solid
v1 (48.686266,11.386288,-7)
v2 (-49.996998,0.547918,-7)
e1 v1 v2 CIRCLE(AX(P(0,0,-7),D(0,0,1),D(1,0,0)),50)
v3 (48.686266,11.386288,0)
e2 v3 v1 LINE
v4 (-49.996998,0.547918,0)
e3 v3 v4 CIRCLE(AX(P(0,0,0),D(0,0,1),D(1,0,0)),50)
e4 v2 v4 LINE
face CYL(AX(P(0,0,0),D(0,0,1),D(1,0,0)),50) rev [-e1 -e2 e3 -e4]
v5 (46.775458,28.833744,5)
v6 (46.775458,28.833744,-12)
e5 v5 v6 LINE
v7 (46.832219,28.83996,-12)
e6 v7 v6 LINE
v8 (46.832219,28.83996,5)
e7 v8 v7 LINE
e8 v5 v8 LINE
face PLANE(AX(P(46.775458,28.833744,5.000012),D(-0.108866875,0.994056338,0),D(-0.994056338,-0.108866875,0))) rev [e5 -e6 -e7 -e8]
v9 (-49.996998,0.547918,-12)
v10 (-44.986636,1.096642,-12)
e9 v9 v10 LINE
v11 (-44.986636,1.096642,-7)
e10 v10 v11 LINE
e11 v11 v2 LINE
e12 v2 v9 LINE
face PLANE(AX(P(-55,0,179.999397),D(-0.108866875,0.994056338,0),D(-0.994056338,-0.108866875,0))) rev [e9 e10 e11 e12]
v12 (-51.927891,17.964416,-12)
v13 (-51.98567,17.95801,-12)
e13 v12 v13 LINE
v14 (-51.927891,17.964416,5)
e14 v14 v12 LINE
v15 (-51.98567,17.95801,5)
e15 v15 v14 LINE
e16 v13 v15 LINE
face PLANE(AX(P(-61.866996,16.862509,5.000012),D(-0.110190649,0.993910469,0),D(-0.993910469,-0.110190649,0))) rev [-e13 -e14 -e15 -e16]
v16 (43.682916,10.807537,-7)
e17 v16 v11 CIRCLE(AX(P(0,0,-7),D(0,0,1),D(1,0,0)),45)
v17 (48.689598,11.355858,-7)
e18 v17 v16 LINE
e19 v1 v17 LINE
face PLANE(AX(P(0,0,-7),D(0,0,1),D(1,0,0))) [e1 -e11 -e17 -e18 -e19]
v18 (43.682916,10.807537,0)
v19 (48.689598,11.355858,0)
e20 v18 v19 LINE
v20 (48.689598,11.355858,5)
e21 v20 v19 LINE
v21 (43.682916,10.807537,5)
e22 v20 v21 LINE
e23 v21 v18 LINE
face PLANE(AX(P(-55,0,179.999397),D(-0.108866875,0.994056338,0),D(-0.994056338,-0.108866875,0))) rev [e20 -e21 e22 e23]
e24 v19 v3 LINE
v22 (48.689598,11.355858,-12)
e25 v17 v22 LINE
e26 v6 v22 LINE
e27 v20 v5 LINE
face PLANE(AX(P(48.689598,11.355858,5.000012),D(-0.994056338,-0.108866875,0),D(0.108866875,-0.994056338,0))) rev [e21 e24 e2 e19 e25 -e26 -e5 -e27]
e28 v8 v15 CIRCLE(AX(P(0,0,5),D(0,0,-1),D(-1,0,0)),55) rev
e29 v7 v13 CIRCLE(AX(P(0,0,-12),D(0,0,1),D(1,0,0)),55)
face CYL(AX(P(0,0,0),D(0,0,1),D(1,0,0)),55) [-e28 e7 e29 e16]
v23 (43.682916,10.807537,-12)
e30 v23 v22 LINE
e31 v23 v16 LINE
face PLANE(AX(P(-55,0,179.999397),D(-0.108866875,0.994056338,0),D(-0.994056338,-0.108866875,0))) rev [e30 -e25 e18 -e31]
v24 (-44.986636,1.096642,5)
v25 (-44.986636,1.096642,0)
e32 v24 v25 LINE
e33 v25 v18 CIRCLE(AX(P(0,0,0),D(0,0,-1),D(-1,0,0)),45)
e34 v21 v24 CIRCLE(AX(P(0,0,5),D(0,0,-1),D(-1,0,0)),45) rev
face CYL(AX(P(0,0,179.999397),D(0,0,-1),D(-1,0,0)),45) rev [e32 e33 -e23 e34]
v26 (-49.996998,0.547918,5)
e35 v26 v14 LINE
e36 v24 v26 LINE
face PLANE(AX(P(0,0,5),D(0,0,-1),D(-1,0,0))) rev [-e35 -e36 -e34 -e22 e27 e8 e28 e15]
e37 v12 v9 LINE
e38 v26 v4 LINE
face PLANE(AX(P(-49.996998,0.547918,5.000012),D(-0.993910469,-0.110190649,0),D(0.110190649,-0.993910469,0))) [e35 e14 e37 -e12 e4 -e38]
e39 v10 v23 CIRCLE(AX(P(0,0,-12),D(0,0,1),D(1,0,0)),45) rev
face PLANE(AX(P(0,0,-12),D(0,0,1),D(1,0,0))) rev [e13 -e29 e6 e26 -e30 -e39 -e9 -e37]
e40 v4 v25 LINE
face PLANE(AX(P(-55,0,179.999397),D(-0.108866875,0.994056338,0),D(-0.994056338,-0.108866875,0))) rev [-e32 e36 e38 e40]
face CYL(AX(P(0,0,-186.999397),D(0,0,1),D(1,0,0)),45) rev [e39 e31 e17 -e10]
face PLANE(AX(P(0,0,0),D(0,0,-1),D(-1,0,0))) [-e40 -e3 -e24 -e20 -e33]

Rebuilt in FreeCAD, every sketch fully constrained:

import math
import FreeCAD as App
import Part
import Sketcher

V = App.Vector
Q = App.Units.Quantity


def faces_at(feature, points):
    """Names of the faces that lie closest to the given points."""
    faces = feature.Shape.Faces
    near = lambda p: min(range(len(faces)), key=lambda i: faces[i].distToShape(Part.Vertex(*p))[0])
    return sorted({f"Face{near(p) + 1}" for p in points})

doc = App.newDocument("Part")
body = doc.addObject("PartDesign::Body", "Body")

sketch1 = body.newObject("Sketcher::SketchObject", "Sketch")
sketch1.AttachmentSupport = (doc.getObject("XZ_Plane"), [""])
sketch1.MapMode = "FlatFace"
sketch1.addGeometry(Part.LineSegment(V(-50, -7, 0), V(-50, 0, 0)), False)
sketch1.addGeometry(Part.LineSegment(V(-50, 0, 0), V(0, 0, 0)), False)
sketch1.addGeometry(Part.LineSegment(V(0, 0, 0), V(0, -7, 0)), False)
sketch1.addGeometry(Part.LineSegment(V(0, -7, 0), V(-50, -7, 0)), False)
sketch1.addConstraint(Sketcher.Constraint("Coincident", 0, 2, 1, 1))
sketch1.addConstraint(Sketcher.Constraint("Coincident", 1, 2, 2, 1))
sketch1.addConstraint(Sketcher.Constraint("Coincident", 2, 2, 3, 1))
sketch1.addConstraint(Sketcher.Constraint("Coincident", 3, 2, 0, 1))
sketch1.addConstraint(Sketcher.Constraint("Vertical", 0))
sketch1.addConstraint(Sketcher.Constraint("Horizontal", 1))
sketch1.addConstraint(Sketcher.Constraint("Vertical", 2))
sketch1.addConstraint(Sketcher.Constraint("Horizontal", 3))
sketch1.addConstraint(Sketcher.Constraint("Coincident", 1, 2, -1, 1))
sketch1.addConstraint(Sketcher.Constraint("DistanceX", 1, 1, 1, 2, 50.0))
sketch1.addConstraint(Sketcher.Constraint("DistanceY", 0, 1, 0, 2, 7.0))
revolution = body.newObject("PartDesign::Revolution", "Revolution")
revolution.Profile = sketch1
revolution.ReferenceAxis = (sketch1, ["V_Axis"])
revolution.Angle = 167.5
revolution.Reversed = True
doc.recompute()

thickness = body.newObject("PartDesign::Thickness", "Thickness")
thickness.Base = (revolution, faces_at(revolution, [(-25, 0, -3.5), (24.407, 5.411, -3.5)]))
thickness.Value = 5
thickness.Reversed = False
thickness.Join = "Intersection"

sketch2 = body.newObject("Sketcher::SketchObject", "Sketch001")
sketch2.AttachmentSupport = (doc.getObject("XY_Plane"), [""])
sketch2.MapMode = "FlatFace"
sketch2.AttachmentOffset = App.Placement(V(0, 0, 5), App.Rotation())
sketch2.addGeometry(Part.LineSegment(V(-55, 0, 0), V(-307.130564, -27.612788, 0)), False)
sketch2.addGeometry(Part.LineSegment(V(-307.130564, -27.612788, 0), V(-251.904989, -531.873916, 0)), False)
sketch2.addGeometry(Part.LineSegment(V(-251.904989, -531.873916, 0), V(361.05242, -464.744162, 0)), False)
sketch2.addGeometry(Part.LineSegment(V(361.05242, -464.744162, 0), V(305.826845, 39.516966, 0)), False)
sketch2.addGeometry(Part.LineSegment(V(305.826845, 39.516966, 0), V(53.69628, 11.904179, 0)), False)
sketch2.addGeometry(Part.LineSegment(V(53.69628, 11.904179, 0), V(-55, 0, 0)), False)
sketch2.addConstraint(Sketcher.Constraint("Coincident", 0, 2, 1, 1))
sketch2.addConstraint(Sketcher.Constraint("Coincident", 1, 2, 2, 1))
sketch2.addConstraint(Sketcher.Constraint("Coincident", 2, 2, 3, 1))
sketch2.addConstraint(Sketcher.Constraint("Coincident", 3, 2, 4, 1))
sketch2.addConstraint(Sketcher.Constraint("Coincident", 4, 2, 5, 1))
sketch2.addConstraint(Sketcher.Constraint("Coincident", 5, 2, 0, 1))
sketch2.addConstraint(Sketcher.Constraint("PointOnObject", 5, 2, -1))
sketch2.addConstraint(Sketcher.Constraint("Perpendicular", 0, 1))
sketch2.addConstraint(Sketcher.Constraint("Perpendicular", 1, 2))
sketch2.addConstraint(Sketcher.Constraint("Perpendicular", 2, 3))
sketch2.addConstraint(Sketcher.Constraint("Perpendicular", 3, 4))
sketch2.addConstraint(Sketcher.Constraint("Parallel", 4, 5))
sketch2.addConstraint(Sketcher.Constraint("Equal", 0, 4))
sketch2.addConstraint(Sketcher.Constraint("DistanceX", 5, 2, -1, 1, 55.0))
sketch2.addConstraint(Sketcher.Constraint("Angle", 0, Q("-173.75 deg")))
sketch2.addConstraint(Sketcher.Constraint("DistanceX", 1, 2, -1, 1, 251.904989))
sketch2.addConstraint(Sketcher.Constraint("DistanceX", -1, 1, 2, 2, 361.05242))
sketch2.addConstraint(Sketcher.Constraint("DistanceX", -1, 1, 4, 2, 53.69628))
pocket1 = body.newObject("PartDesign::Pocket", "Pocket")
pocket1.Profile = sketch2
pocket1.Type = "TwoLengths"
pocket1.Length = 80.617837
pocket1.Length2 = 10
pocket1.Reversed = True

sketch3 = body.newObject("Sketcher::SketchObject", "Sketch002")
sketch3.AttachmentSupport = (doc.getObject("XY_Plane"), [""])
sketch3.MapMode = "FlatFace"
sketch3.AttachmentOffset = App.Placement(V(0, 0, -12), App.Rotation())
sketch3.addGeometry(Part.LineSegment(V(53.69628, 11.904179, 0), V(305.826845, 39.516966, 0)), False)
sketch3.addGeometry(Part.LineSegment(V(305.826845, 39.516966, 0), V(361.05242, -464.744162, 0)), False)
sketch3.addGeometry(Part.LineSegment(V(361.05242, -464.744162, 0), V(-251.904989, -531.873916, 0)), False)
sketch3.addGeometry(Part.LineSegment(V(-251.904989, -531.873916, 0), V(-307.130564, -27.612788, 0)), False)
sketch3.addGeometry(Part.LineSegment(V(-307.130564, -27.612788, 0), V(-55, 0, 0)), False)
sketch3.addGeometry(Part.LineSegment(V(-55, 0, 0), V(53.69628, 11.904179, 0)), False)
sketch3.addConstraint(Sketcher.Constraint("Coincident", 0, 2, 1, 1))
sketch3.addConstraint(Sketcher.Constraint("Coincident", 1, 2, 2, 1))
sketch3.addConstraint(Sketcher.Constraint("Coincident", 2, 2, 3, 1))
sketch3.addConstraint(Sketcher.Constraint("Coincident", 3, 2, 4, 1))
sketch3.addConstraint(Sketcher.Constraint("Coincident", 4, 2, 5, 1))
sketch3.addConstraint(Sketcher.Constraint("Coincident", 5, 2, 0, 1))
sketch3.addConstraint(Sketcher.Constraint("PointOnObject", 4, 2, -1))
sketch3.addConstraint(Sketcher.Constraint("Perpendicular", 0, 1))
sketch3.addConstraint(Sketcher.Constraint("Perpendicular", 1, 2))
sketch3.addConstraint(Sketcher.Constraint("Perpendicular", 2, 3))
sketch3.addConstraint(Sketcher.Constraint("Perpendicular", 3, 4))
sketch3.addConstraint(Sketcher.Constraint("Parallel", 4, 5))
sketch3.addConstraint(Sketcher.Constraint("Equal", 0, 4))
sketch3.addConstraint(Sketcher.Constraint("DistanceX", 4, 2, -1, 1, 55.0))
sketch3.addConstraint(Sketcher.Constraint("Angle", 0, Q("6.25 deg")))
sketch3.addConstraint(Sketcher.Constraint("DistanceX", -1, 1, 1, 2, 361.05242))
sketch3.addConstraint(Sketcher.Constraint("DistanceX", 2, 2, -1, 1, 251.904989))
sketch3.addConstraint(Sketcher.Constraint("DistanceX", -1, 1, 5, 2, 53.69628))
pocket2 = body.newObject("PartDesign::Pocket", "Pocket001")
pocket2.Profile = sketch3
pocket2.Type = "ThroughAll"
pocket2.Midplane = True

sketch4 = body.newObject("Sketcher::SketchObject", "Sketch003")
sketch4.AttachmentSupport = (doc.getObject("XY_Plane"), [""])
sketch4.MapMode = "FlatFace"
sketch4.AttachmentOffset = App.Placement(V(0, 0, 5), App.Rotation())
sketch4.addGeometry(Part.LineSegment(V(-44.986636, 1.096642, 0), V(-50.710864, -233.723705, 0)), False)
sketch4.addGeometry(Part.LineSegment(V(-50.710864, -233.723705, 0), V(0.432639, -700.711701, 0)), False)
sketch4.addGeometry(Part.LineSegment(V(0.432639, -700.711701, 0), V(151.239386, -684.195677, 0)), False)
sketch4.addGeometry(Part.LineSegment(V(151.239386, -684.195677, 0), V(100.095883, -217.20768, 0)), False)
sketch4.addGeometry(Part.LineSegment(V(100.095883, -217.20768, 0), V(43.682916, 10.807537, 0)), False)
sketch4.addGeometry(Part.ArcOfCircle(Part.Circle(V(0, 0, 0), V(0, 0, 1), 45), math.radians(13.896426), math.radians(178.603574)), False)
sketch4.addConstraint(Sketcher.Constraint("Coincident", 0, 2, 1, 1))
sketch4.addConstraint(Sketcher.Constraint("Coincident", 1, 2, 2, 1))
sketch4.addConstraint(Sketcher.Constraint("Coincident", 2, 2, 3, 1))
sketch4.addConstraint(Sketcher.Constraint("Coincident", 3, 2, 4, 1))
sketch4.addConstraint(Sketcher.Constraint("Tangent", 4, 2, 5, 1))
sketch4.addConstraint(Sketcher.Constraint("Tangent", 5, 2, 0, 1))
sketch4.addConstraint(Sketcher.Constraint("Coincident", 5, 3, -1, 1))
sketch4.addConstraint(Sketcher.Constraint("Perpendicular", 1, 2))
sketch4.addConstraint(Sketcher.Constraint("Perpendicular", 2, 3))
sketch4.addConstraint(Sketcher.Constraint("Equal", 1, 3))
sketch4.addConstraint(Sketcher.Constraint("Equal", 0, 4))
sketch4.addConstraint(Sketcher.Constraint("Radius", 5, 45.0))
sketch4.addConstraint(Sketcher.Constraint("Angle", 1, Q("-83.75 deg")))
sketch4.addConstraint(Sketcher.Constraint("DistanceY", 1, 2, -1, 1, 700.711701))
sketch4.addConstraint(Sketcher.Constraint("Distance", 1, 469.780212))
sketch4.addConstraint(Sketcher.Constraint("Distance", 2, 151.708451))
pocket3 = body.newObject("PartDesign::Pocket", "Pocket002")
pocket3.Profile = sketch4
pocket3.Type = "TwoLengths"
pocket3.Length = 80.617837
pocket3.Length2 = 10
pocket3.Reversed = True

sketch5 = body.newObject("Sketcher::SketchObject", "Sketch004")
sketch5.AttachmentSupport = (doc.getObject("XY_Plane"), [""])
sketch5.MapMode = "FlatFace"
sketch5.AttachmentOffset = App.Placement(V(0, 0, -12), App.Rotation())
sketch5.addGeometry(Part.LineSegment(V(43.682916, 10.807537, 0), V(100.095883, -217.20768, 0)), False)
sketch5.addGeometry(Part.LineSegment(V(100.095883, -217.20768, 0), V(151.239386, -684.195677, 0)), False)
sketch5.addGeometry(Part.LineSegment(V(151.239386, -684.195677, 0), V(0.432639, -700.711701, 0)), False)
sketch5.addGeometry(Part.LineSegment(V(0.432639, -700.711701, 0), V(-50.710864, -233.723705, 0)), False)
sketch5.addGeometry(Part.LineSegment(V(-50.710864, -233.723705, 0), V(-44.986636, 1.096642, 0)), False)
sketch5.addGeometry(Part.ArcOfCircle(Part.Circle(V(0, 0, 0), V(0, 0, 1), 45), math.radians(13.896426), math.radians(178.603574)), False)
sketch5.addConstraint(Sketcher.Constraint("Coincident", 0, 2, 1, 1))
sketch5.addConstraint(Sketcher.Constraint("Coincident", 1, 2, 2, 1))
sketch5.addConstraint(Sketcher.Constraint("Coincident", 2, 2, 3, 1))
sketch5.addConstraint(Sketcher.Constraint("Coincident", 3, 2, 4, 1))
sketch5.addConstraint(Sketcher.Constraint("Tangent", 4, 2, 5, 2))
sketch5.addConstraint(Sketcher.Constraint("Tangent", 5, 1, 0, 1))
sketch5.addConstraint(Sketcher.Constraint("Coincident", 5, 3, -1, 1))
sketch5.addConstraint(Sketcher.Constraint("Perpendicular", 1, 2))
sketch5.addConstraint(Sketcher.Constraint("Perpendicular", 2, 3))
sketch5.addConstraint(Sketcher.Constraint("Equal", 1, 3))
sketch5.addConstraint(Sketcher.Constraint("Equal", 0, 4))
sketch5.addConstraint(Sketcher.Constraint("Radius", 5, 45.0))
sketch5.addConstraint(Sketcher.Constraint("Angle", 1, Q("-83.75 deg")))
sketch5.addConstraint(Sketcher.Constraint("DistanceY", 2, 2, -1, 1, 700.711701))
sketch5.addConstraint(Sketcher.Constraint("Distance", 1, 469.780212))
sketch5.addConstraint(Sketcher.Constraint("Distance", 2, 151.708451))
pocket4 = body.newObject("PartDesign::Pocket", "Pocket003")
pocket4.Profile = sketch5
pocket4.Type = "ThroughAll"
pocket4.Midplane = True

sketch6 = body.newObject("Sketcher::SketchObject", "Sketch005")
sketch6.AttachmentSupport = (doc.getObject("XY_Plane"), [""])
sketch6.MapMode = "FlatFace"
sketch6.AttachmentOffset = App.Placement(V(0, 0, 5), App.Rotation())
sketch6.addGeometry(Part.LineSegment(V(46.775458, 28.833744, 0), V(48.689598, 11.355858, 0)), False)
sketch6.addGeometry(Part.LineSegment(V(48.689598, 11.355858, 0), V(58.630162, 12.444527, 0)), False)
sketch6.addGeometry(Part.LineSegment(V(58.630162, 12.444527, 0), V(56.716022, 29.922412, 0)), False)
sketch6.addGeometry(Part.LineSegment(V(56.716022, 29.922412, 0), V(46.775458, 28.833744, 0)), False)
sketch6.addConstraint(Sketcher.Constraint("Coincident", 0, 2, 1, 1))
sketch6.addConstraint(Sketcher.Constraint("Coincident", 1, 2, 2, 1))
sketch6.addConstraint(Sketcher.Constraint("Coincident", 2, 2, 3, 1))
sketch6.addConstraint(Sketcher.Constraint("Coincident", 3, 2, 0, 1))
sketch6.addConstraint(Sketcher.Constraint("Perpendicular", 0, 1))
sketch6.addConstraint(Sketcher.Constraint("Perpendicular", 1, 2))
sketch6.addConstraint(Sketcher.Constraint("Perpendicular", 2, 3))
sketch6.addConstraint(Sketcher.Constraint("Distance", 1, 10.0))
sketch6.addConstraint(Sketcher.Constraint("Angle", 0, Q("-83.75 deg")))
sketch6.addConstraint(Sketcher.Constraint("DistanceX", -1, 1, 0, 2, 48.689598))
sketch6.addConstraint(Sketcher.Constraint("Distance", 0, 17.58239))
sketch6.addConstraint(Sketcher.Constraint("DistanceY", -1, 1, 0, 2, 11.355858))
pocket5 = body.newObject("PartDesign::Pocket", "Pocket004")
pocket5.Profile = sketch6
pocket5.Type = "ThroughAll"
pocket5.Midplane = True

sketch7 = body.newObject("Sketcher::SketchObject", "Sketch006")
sketch7.AttachmentSupport = (doc.getObject("XY_Plane"), [""])
sketch7.MapMode = "FlatFace"
sketch7.AttachmentOffset = App.Placement(V(0, 0, 5), App.Rotation())
sketch7.addGeometry(Part.LineSegment(V(-49.996998, 0.547918, 0), V(-51.927891, 17.964416, 0)), False)
sketch7.addGeometry(Part.LineSegment(V(-51.927891, 17.964416, 0), V(-61.866996, 16.862509, 0)), False)
sketch7.addGeometry(Part.LineSegment(V(-61.866996, 16.862509, 0), V(-59.936102, -0.553989, 0)), False)
sketch7.addGeometry(Part.LineSegment(V(-59.936102, -0.553989, 0), V(-49.996998, 0.547918, 0)), False)
sketch7.addConstraint(Sketcher.Constraint("Coincident", 0, 2, 1, 1))
sketch7.addConstraint(Sketcher.Constraint("Coincident", 1, 2, 2, 1))
sketch7.addConstraint(Sketcher.Constraint("Coincident", 2, 2, 3, 1))
sketch7.addConstraint(Sketcher.Constraint("Coincident", 3, 2, 0, 1))
sketch7.addConstraint(Sketcher.Constraint("Perpendicular", 0, 1))
sketch7.addConstraint(Sketcher.Constraint("Perpendicular", 1, 2))
sketch7.addConstraint(Sketcher.Constraint("Perpendicular", 2, 3))
sketch7.addConstraint(Sketcher.Constraint("Distance", 1, 10.0))
sketch7.addConstraint(Sketcher.Constraint("DistanceX", 1, 2, 3, 2, 11.869998))
sketch7.addConstraint(Sketcher.Constraint("DistanceX", 0, 2, -1, 1, 51.927891))
sketch7.addConstraint(Sketcher.Constraint("DistanceY", -1, 1, 1, 2, 16.862509))
sketch7.addConstraint(Sketcher.Constraint("DistanceY", 2, 2, -1, 1, 0.553989))
pocket6 = body.newObject("PartDesign::Pocket", "Pocket005")
pocket6.Profile = sketch7
pocket6.Type = "ThroughAll"
pocket6.Midplane = True

doc.recompute()
